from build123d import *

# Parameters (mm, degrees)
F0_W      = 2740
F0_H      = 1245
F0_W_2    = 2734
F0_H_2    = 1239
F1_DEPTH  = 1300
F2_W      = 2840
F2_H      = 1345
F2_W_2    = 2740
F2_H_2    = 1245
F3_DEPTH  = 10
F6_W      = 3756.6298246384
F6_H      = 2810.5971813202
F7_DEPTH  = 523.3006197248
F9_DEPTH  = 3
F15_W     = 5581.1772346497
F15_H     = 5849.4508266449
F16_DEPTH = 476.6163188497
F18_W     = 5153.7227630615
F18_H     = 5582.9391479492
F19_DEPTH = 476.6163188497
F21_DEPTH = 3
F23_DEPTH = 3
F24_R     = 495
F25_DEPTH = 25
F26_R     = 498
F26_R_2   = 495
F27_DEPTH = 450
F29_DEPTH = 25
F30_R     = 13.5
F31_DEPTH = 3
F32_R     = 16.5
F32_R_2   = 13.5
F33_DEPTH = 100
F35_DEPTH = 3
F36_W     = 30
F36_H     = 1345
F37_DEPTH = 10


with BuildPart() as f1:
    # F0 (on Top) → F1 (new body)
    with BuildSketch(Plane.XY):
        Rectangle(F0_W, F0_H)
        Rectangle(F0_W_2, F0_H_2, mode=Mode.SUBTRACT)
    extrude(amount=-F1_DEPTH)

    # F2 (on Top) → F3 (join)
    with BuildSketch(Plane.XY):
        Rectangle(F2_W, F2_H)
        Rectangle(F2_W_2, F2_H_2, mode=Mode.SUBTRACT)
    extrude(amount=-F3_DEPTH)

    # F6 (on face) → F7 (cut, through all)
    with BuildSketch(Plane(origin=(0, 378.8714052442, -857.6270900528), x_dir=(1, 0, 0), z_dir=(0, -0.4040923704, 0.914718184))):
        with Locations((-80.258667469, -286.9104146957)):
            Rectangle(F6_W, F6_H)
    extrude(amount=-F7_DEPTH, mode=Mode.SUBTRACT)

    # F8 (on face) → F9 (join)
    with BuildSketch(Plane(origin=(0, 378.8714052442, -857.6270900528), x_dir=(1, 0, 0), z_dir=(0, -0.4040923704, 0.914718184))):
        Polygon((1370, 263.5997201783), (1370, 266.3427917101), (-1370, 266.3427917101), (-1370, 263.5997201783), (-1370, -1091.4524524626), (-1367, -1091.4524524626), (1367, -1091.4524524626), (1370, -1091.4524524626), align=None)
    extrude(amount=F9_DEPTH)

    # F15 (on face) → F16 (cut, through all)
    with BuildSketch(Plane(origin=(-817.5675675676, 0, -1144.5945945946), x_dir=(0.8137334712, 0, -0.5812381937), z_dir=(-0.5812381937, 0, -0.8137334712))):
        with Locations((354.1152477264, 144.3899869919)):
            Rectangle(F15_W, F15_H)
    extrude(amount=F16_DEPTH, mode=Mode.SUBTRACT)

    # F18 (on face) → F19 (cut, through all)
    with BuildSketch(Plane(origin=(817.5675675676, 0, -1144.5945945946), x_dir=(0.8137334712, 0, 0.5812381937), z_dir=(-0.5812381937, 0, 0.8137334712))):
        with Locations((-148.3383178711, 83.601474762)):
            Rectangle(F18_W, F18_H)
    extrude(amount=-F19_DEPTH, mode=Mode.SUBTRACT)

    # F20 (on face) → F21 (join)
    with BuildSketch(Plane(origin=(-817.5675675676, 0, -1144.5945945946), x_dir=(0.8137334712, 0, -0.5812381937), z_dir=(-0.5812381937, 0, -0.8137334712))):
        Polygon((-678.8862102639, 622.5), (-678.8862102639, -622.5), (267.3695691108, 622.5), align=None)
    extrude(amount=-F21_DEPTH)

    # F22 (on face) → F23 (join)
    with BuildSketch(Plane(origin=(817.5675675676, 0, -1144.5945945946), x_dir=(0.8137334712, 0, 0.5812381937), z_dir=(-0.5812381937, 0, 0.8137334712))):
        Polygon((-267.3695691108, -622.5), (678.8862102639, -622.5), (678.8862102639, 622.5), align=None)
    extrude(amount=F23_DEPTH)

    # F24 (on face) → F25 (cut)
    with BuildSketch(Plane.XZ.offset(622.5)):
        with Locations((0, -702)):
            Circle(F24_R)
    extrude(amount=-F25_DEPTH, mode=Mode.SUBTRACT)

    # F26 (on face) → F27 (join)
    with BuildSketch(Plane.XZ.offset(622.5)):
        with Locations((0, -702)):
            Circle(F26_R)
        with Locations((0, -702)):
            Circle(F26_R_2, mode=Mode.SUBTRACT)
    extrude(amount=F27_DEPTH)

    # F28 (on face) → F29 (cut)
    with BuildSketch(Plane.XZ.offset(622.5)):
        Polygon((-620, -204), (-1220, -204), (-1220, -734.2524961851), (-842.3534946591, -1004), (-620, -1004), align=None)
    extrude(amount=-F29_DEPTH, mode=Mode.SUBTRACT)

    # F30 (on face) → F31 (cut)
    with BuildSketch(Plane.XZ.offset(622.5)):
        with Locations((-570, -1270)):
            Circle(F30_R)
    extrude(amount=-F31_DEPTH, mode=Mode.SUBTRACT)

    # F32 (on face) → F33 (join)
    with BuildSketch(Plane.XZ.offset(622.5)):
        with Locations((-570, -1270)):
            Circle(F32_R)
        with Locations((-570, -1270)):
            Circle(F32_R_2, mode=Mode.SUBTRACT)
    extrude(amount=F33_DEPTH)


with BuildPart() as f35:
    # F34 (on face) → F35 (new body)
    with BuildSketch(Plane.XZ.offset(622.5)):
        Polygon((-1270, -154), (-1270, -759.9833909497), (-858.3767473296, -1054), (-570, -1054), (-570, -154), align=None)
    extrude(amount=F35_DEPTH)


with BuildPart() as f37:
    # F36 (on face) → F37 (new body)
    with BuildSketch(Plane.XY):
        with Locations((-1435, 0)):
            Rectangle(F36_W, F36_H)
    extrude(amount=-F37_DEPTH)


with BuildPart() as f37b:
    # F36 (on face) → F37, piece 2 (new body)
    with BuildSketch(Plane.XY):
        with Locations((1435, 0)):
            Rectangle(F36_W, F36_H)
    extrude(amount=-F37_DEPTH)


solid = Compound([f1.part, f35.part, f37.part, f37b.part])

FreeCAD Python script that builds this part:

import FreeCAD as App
import Part
import Sketcher
from FreeCAD import Vector
Q = App.Units.Quantity

doc = App.newDocument("Part")
body = doc.addObject("PartDesign::Body", "Body")

sketch1 = body.newObject("Sketcher::SketchObject", "Sketch")
sketch1.AttachmentSupport = (doc.getObject("XY_Plane"), [""])
sketch1.MapMode = "FlatFace"
sketch1.addGeometry([
    Part.LineSegment(Vector(-1370, 622.5, 0), Vector(-1370, -622.5, 0)),
    Part.LineSegment(Vector(-1370, -622.5, 0), Vector(1370, -622.5, 0)),
    Part.LineSegment(Vector(1370, -622.5, 0), Vector(1370, 622.5, 0)),
    Part.LineSegment(Vector(1370, 622.5, 0), Vector(-1370, 622.5, 0)),
    Part.LineSegment(Vector(1367, -619.5, 0), Vector(-1367, -619.5, 0)),
    Part.LineSegment(Vector(-1367, -619.5, 0), Vector(-1367, 619.5, 0)),
    Part.LineSegment(Vector(-1367, 619.5, 0), Vector(1367, 619.5, 0)),
    Part.LineSegment(Vector(1367, 619.5, 0), Vector(1367, -619.5, 0)),
], False)
sketch1.addConstraint([
    Sketcher.Constraint("Coincident", 0, 2, 1, 1),
    Sketcher.Constraint("Coincident", 1, 2, 2, 1),
    Sketcher.Constraint("Coincident", 2, 2, 3, 1),
    Sketcher.Constraint("Coincident", 3, 2, 0, 1),
    Sketcher.Constraint("Coincident", 4, 2, 5, 1),
    Sketcher.Constraint("Coincident", 5, 2, 6, 1),
    Sketcher.Constraint("Coincident", 6, 2, 7, 1),
    Sketcher.Constraint("Coincident", 7, 2, 4, 1),
    Sketcher.Constraint("Vertical", 0),
    Sketcher.Constraint("Horizontal", 1),
    Sketcher.Constraint("Vertical", 2),
    Sketcher.Constraint("Horizontal", 3),
    Sketcher.Constraint("Horizontal", 4),
    Sketcher.Constraint("Vertical", 5),
    Sketcher.Constraint("Horizontal", 6),
    Sketcher.Constraint("Vertical", 7),
    Sketcher.Constraint("Symmetric", 0, 2, 2, 2, -1, 1),
    Sketcher.Constraint("Symmetric", 4, 2, 6, 2, -1, 1),
    Sketcher.Constraint("DistanceX", 1, 1, 1, 2, Q("2740 mm")),
    Sketcher.Constraint("DistanceX", 4, 2, 4, 1, Q("2734 mm")),
    Sketcher.Constraint("DistanceY", 0, 2, 0, 1, Q("1245 mm")),
    Sketcher.Constraint("DistanceY", 5, 1, 5, 2, Q("1239 mm")),
])
pad1 = body.newObject("PartDesign::Pad", "Pad")
pad1.Profile = sketch1
pad1.Length = 1300
pad1.Reversed = True

sketch2 = body.newObject("Sketcher::SketchObject", "Sketch001")
sketch2.AttachmentSupport = (doc.getObject("XY_Plane"), [""])
sketch2.MapMode = "FlatFace"
sketch2.addGeometry([
    Part.LineSegment(Vector(-1420, 672.5, 0), Vector(-1420, -672.5, 0)),
    Part.LineSegment(Vector(-1420, -672.5, 0), Vector(1420, -672.5, 0)),
    Part.LineSegment(Vector(1420, -672.5, 0), Vector(1420, 672.5, 0)),
    Part.LineSegment(Vector(1420, 672.5, 0), Vector(-1420, 672.5, 0)),
    Part.LineSegment(Vector(1370, -622.5, 0), Vector(-1370, -622.5, 0)),
    Part.LineSegment(Vector(-1370, -622.5, 0), Vector(-1370, 622.5, 0)),
    Part.LineSegment(Vector(-1370, 622.5, 0), Vector(1370, 622.5, 0)),
    Part.LineSegment(Vector(1370, 622.5, 0), Vector(1370, -622.5, 0)),
], False)
sketch2.addConstraint([
    Sketcher.Constraint("Coincident", 0, 2, 1, 1),
    Sketcher.Constraint("Coincident", 1, 2, 2, 1),
    Sketcher.Constraint("Coincident", 2, 2, 3, 1),
    Sketcher.Constraint("Coincident", 3, 2, 0, 1),
    Sketcher.Constraint("Coincident", 4, 2, 5, 1),
    Sketcher.Constraint("Coincident", 5, 2, 6, 1),
    Sketcher.Constraint("Coincident", 6, 2, 7, 1),
    Sketcher.Constraint("Coincident", 7, 2, 4, 1),
    Sketcher.Constraint("Vertical", 0),
    Sketcher.Constraint("Horizontal", 1),
    Sketcher.Constraint("Vertical", 2),
    Sketcher.Constraint("Horizontal", 3),
    Sketcher.Constraint("Horizontal", 4),
    Sketcher.Constraint("Vertical", 5),
    Sketcher.Constraint("Horizontal", 6),
    Sketcher.Constraint("Vertical", 7),
    Sketcher.Constraint("Symmetric", 0, 2, 2, 2, -1, 1),
    Sketcher.Constraint("Symmetric", 4, 2, 6, 2, -1, 1),
    Sketcher.Constraint("DistanceX", 1, 1, 1, 2, Q("2840 mm")),
    Sketcher.Constraint("DistanceX", 4, 2, 4, 1, Q("2740 mm")),
    Sketcher.Constraint("DistanceY", 0, 2, 0, 1, Q("1345 mm")),
    Sketcher.Constraint("DistanceY", 5, 1, 5, 2, Q("1245 mm")),
])
pad2 = body.newObject("PartDesign::Pad", "Pad001")
pad2.Profile = sketch2
pad2.Length = 10
pad2.Reversed = True

sketch3 = body.newObject("Sketcher::SketchObject", "Sketch002")
sketch3.Placement = App.Placement(Vector(0, 378.871405, -857.62709), App.Rotation(Vector(1, 0, 0), Vector(0, 0.914718184, 0.40409237), Vector(0, -0.40409237, 0.914718184), "ZXY"))
sketch3.addGeometry([
    Part.LineSegment(Vector(-1958.57358, 1118.388176, 0), Vector(-1958.57358, -1692.209005, 0)),
    Part.LineSegment(Vector(-1958.57358, -1692.209005, 0), Vector(1798.056245, -1692.209005, 0)),
    Part.LineSegment(Vector(1798.056245, -1692.209005, 0), Vector(1798.056245, 1118.388176, 0)),
    Part.LineSegment(Vector(1798.056245, 1118.388176, 0), Vector(-1958.57358, 1118.388176, 0)),
], False)
sketch3.addConstraint([
    Sketcher.Constraint("Coincident", 0, 2, 1, 1),
    Sketcher.Constraint("Coincident", 1, 2, 2, 1),
    Sketcher.Constraint("Coincident", 2, 2, 3, 1),
    Sketcher.Constraint("Coincident", 3, 2, 0, 1),
    Sketcher.Constraint("Vertical", 0),
    Sketcher.Constraint("Horizontal", 1),
    Sketcher.Constraint("Vertical", 2),
    Sketcher.Constraint("Horizontal", 3),
    Sketcher.Constraint("DistanceY", 0, 2, 0, 1, Q("2810.59718 mm")),
    Sketcher.Constraint("DistanceX", 1, 1, 1, 2, Q("3756.629825 mm")),
    Sketcher.Constraint("DistanceX", 0, 2, -1, 1, Q("1958.57358 mm")),
    Sketcher.Constraint("DistanceY", 0, 2, -1, 1, Q("1692.209005 mm")),
])
pocket1 = body.newObject("PartDesign::Pocket", "Pocket")
pocket1.Profile = sketch3
pocket1.Type = "ThroughAll"

sketch4 = body.newObject("Sketcher::SketchObject", "Sketch003")
sketch4.Placement = App.Placement(Vector(0, 378.871405, -857.62709), App.Rotation(Vector(1, 0, 0), Vector(0, 0.914718184, 0.40409237), Vector(0, -0.40409237, 0.914718184), "ZXY"))
sketch4.addGeometry([
    Part.LineSegment(Vector(1370, 266.342792, 0), Vector(-1370, 266.342792, 0)),
    Part.LineSegment(Vector(-1370, 266.342792, 0), Vector(-1370, -1091.452452, 0)),
    Part.LineSegment(Vector(-1370, -1091.452452, 0), Vector(1370, -1091.452452, 0)),
    Part.LineSegment(Vector(1370, -1091.452452, 0), Vector(1370, 266.342792, 0)),
], False)
sketch4.addConstraint([
    Sketcher.Constraint("Coincident", 0, 2, 1, 1),
    Sketcher.Constraint("Coincident", 1, 2, 2, 1),
    Sketcher.Constraint("Coincident", 2, 2, 3, 1),
    Sketcher.Constraint("Coincident", 3, 2, 0, 1),
    Sketcher.Constraint("Horizontal", 0),
    Sketcher.Constraint("Vertical", 1),
    Sketcher.Constraint("Horizontal", 2),
    Sketcher.Constraint("Vertical", 3),
    Sketcher.Constraint("DistanceX", 0, 2, 0, 1, Q("2740 mm")),
    Sketcher.Constraint("DistanceX", 0, 2, -1, 1, Q("1370 mm")),
    Sketcher.Constraint("DistanceY", 1, 2, 1, 1, Q("1357.795244 mm")),
    Sketcher.Constraint("DistanceY", -1, 1, 0, 2, Q("266.342792 mm")),
])
pad3 = body.newObject("PartDesign::Pad", "Pad002")
pad3.Profile = sketch4
pad3.Length = 3

sketch5 = body.newObject("Sketcher::SketchObject", "Sketch004")
sketch5.Placement = App.Placement(Vector(-817.567568, 0, -1144.594595), App.Rotation(Vector(0.813733471, 0, -0.581238194), Vector(0, -1, 0), Vector(-0.581238194, 0, -0.813733471), "ZXY"))
sketch5.addGeometry([
    Part.LineSegment(Vector(-2436.47337, 3069.1154, 0), Vector(-2436.47337, -2780.335426, 0)),
    Part.LineSegment(Vector(-2436.47337, -2780.335426, 0), Vector(3144.703865, -2780.335426, 0)),
    Part.LineSegment(Vector(3144.703865, -2780.335426, 0), Vector(3144.703865, 3069.1154, 0)),
    Part.LineSegment(Vector(3144.703865, 3069.1154, 0), Vector(-2436.47337, 3069.1154, 0)),
], False)
sketch5.addConstraint([
    Sketcher.Constraint("Coincident", 0, 2, 1, 1),
    Sketcher.Constraint("Coincident", 1, 2, 2, 1),
    Sketcher.Constraint("Coincident", 2, 2, 3, 1),
    Sketcher.Constraint("Coincident", 3, 2, 0, 1),
    Sketcher.Constraint("Vertical", 0),
    Sketcher.Constraint("Horizontal", 1),
    Sketcher.Constraint("Vertical", 2),
    Sketcher.Constraint("Horizontal", 3),
    Sketcher.Constraint("DistanceY", -1, 1, 2, 2, Q("3069.1154 mm")),
    Sketcher.Constraint("DistanceX", 1, 1, 1, 2, Q("5581.177235 mm")),
    Sketcher.Constraint("DistanceY", 0, 2, 0, 1, Q("5849.450827 mm")),
    Sketcher.Constraint("DistanceX", 0, 2, -1, 1, Q("2436.47337 mm")),
])
pocket2 = body.newObject("PartDesign::Pocket", "Pocket001")
pocket2.Profile = sketch5
pocket2.Type = "ThroughAll"
pocket2.Reversed = True

sketch6 = body.newObject("Sketcher::SketchObject", "Sketch005")
sketch6.Placement = App.Placement(Vector(817.567568, 0, -1144.594595), App.Rotation(Vector(0.813733471, 0, 0.581238194), Vector(0, 1, 0), Vector(-0.581238194, 0, 0.813733471), "ZXY"))
sketch6.addGeometry([
    Part.LineSegment(Vector(-2725.199699, 2875.071049, 0), Vector(-2725.199699, -2707.868099, 0)),
    Part.LineSegment(Vector(-2725.199699, -2707.868099, 0), Vector(2428.523064, -2707.868099, 0)),
    Part.LineSegment(Vector(2428.523064, -2707.868099, 0), Vector(2428.523064, 2875.071049, 0)),
    Part.LineSegment(Vector(2428.523064, 2875.071049, 0), Vector(-2725.199699, 2875.071049, 0)),
], False)
sketch6.addConstraint([
    Sketcher.Constraint("Coincident", 0, 2, 1, 1),
    Sketcher.Constraint("Coincident", 1, 2, 2, 1),
    Sketcher.Constraint("Coincident", 2, 2, 3, 1),
    Sketcher.Constraint("Coincident", 3, 2, 0, 1),
    Sketcher.Constraint("Vertical", 0),
    Sketcher.Constraint("Horizontal", 1),
    Sketcher.Constraint("Vertical", 2),
    Sketcher.Constraint("Horizontal", 3),
    Sketcher.Constraint("DistanceX", 0, 2, -1, 1, Q("2725.199699 mm")),
    Sketcher.Constraint("DistanceY", 0, 2, -1, 1, Q("2707.868099 mm")),
    Sketcher.Constraint("DistanceX", 1, 1, 1, 2, Q("5153.722763 mm")),
    Sketcher.Constraint("DistanceY", 0, 2, 0, 1, Q("5582.939148 mm")),
])
pocket3 = body.newObject("PartDesign::Pocket", "Pocket002")
pocket3.Profile = sketch6
pocket3.Type = "ThroughAll"

sketch7 = body.newObject("Sketcher::SketchObject", "Sketch006")
sketch7.Placement = App.Placement(Vector(-817.567568, 0, -1144.594595), App.Rotation(Vector(0.813733471, 0, -0.581238194), Vector(0, -1, 0), Vector(-0.581238194, 0, -0.813733471), "ZXY"))
sketch7.addGeometry([
    Part.LineSegment(Vector(-678.88621, 622.5, 0), Vector(-678.88621, -622.5, 0)),
    Part.LineSegment(Vector(-678.88621, -622.5, 0), Vector(267.369569, 622.5, 0)),
    Part.LineSegment(Vector(267.369569, 622.5, 0), Vector(-678.88621, 622.5, 0)),
], False)
sketch7.addConstraint([
    Sketcher.Constraint("Coincident", 0, 2, 1, 1),
    Sketcher.Constraint("Coincident", 1, 2, 2, 1),
    Sketcher.Constraint("Coincident", 2, 2, 0, 1),
    Sketcher.Constraint("Vertical", 0),
    Sketcher.Constraint("Horizontal", 2),
    Sketcher.Constraint("DistanceY", 0, 2, 0, 1, Q("1245 mm")),
    Sketcher.Constraint("DistanceY", 0, 2, -1, 1, Q("622.5 mm")),
    Sketcher.Constraint("DistanceX", 2, 2, 2, 1, Q("946.255779 mm")),
    Sketcher.Constraint("DistanceX", 0, 2, -1, 1, Q("678.88621 mm")),
])
pad4 = body.newObject("PartDesign::Pad", "Pad003")
pad4.Profile = sketch7
pad4.Length = 3
pad4.Reversed = True

sketch8 = body.newObject("Sketcher::SketchObject", "Sketch007")
sketch8.Placement = App.Placement(Vector(817.567568, 0, -1144.594595), App.Rotation(Vector(0.813733471, 0, 0.581238194), Vector(0, 1, 0), Vector(-0.581238194, 0, 0.813733471), "ZXY"))
sketch8.addGeometry([
    Part.LineSegment(Vector(-267.369569, -622.5, 0), Vector(678.88621, -622.5, 0)),
    Part.LineSegment(Vector(678.88621, -622.5, 0), Vector(678.88621, 622.5, 0)),
    Part.LineSegment(Vector(678.88621, 622.5, 0), Vector(-267.369569, -622.5, 0)),
], False)
sketch8.addConstraint([
    Sketcher.Constraint("Coincident", 0, 2, 1, 1),
    Sketcher.Constraint("Coincident", 1, 2, 2, 1),
    Sketcher.Constraint("Coincident", 2, 2, 0, 1),
    Sketcher.Constraint("Horizontal", 0),
    Sketcher.Constraint("Vertical", 1),
    Sketcher.Constraint("DistanceY", 1, 1, 1, 2, Q("1245 mm")),
    Sketcher.Constraint("DistanceY", 0, 2, -1, 1, Q("622.5 mm")),
    Sketcher.Constraint("DistanceX", 0, 1, 0, 2, Q("946.255779 mm")),
    Sketcher.Constraint("DistanceX", -1, 1, 0, 2, Q("678.88621 mm")),
])
pad5 = body.newObject("PartDesign::Pad", "Pad004")
pad5.Profile = sketch8
pad5.Length = 3

sketch9 = body.newObject("Sketcher::SketchObject", "Sketch008")
sketch9.AttachmentSupport = (doc.getObject("XZ_Plane"), [""])
sketch9.MapMode = "FlatFace"
sketch9.AttachmentOffset = App.Placement(Vector(0, 0, 622.5), App.Rotation())
sketch9.addGeometry(Part.Circle(Vector(0, -702, 0), Vector(0, 0, 1), 495), False)
sketch9.addConstraint([
    Sketcher.Constraint("PointOnObject", 0, 3, -2),
    Sketcher.Constraint("Diameter", 0, Q("990 mm")),
    Sketcher.Constraint("DistanceY", 0, 3, -1, 1, Q("702 mm")),
])
pocket4 = body.newObject("PartDesign::Pocket", "Pocket003")
pocket4.Profile = sketch9
pocket4.Length = 25

sketch10 = body.newObject("Sketcher::SketchObject", "Sketch009")
sketch10.AttachmentSupport = (doc.getObject("XZ_Plane"), [""])
sketch10.MapMode = "FlatFace"
sketch10.AttachmentOffset = App.Placement(Vector(0, 0, 622.5), App.Rotation())
sketch10.addGeometry([
    Part.Circle(Vector(0, -702, 0), Vector(0, 0, 1), 498),
    Part.Circle(Vector(0, -702, 0), Vector(0, 0, 1), 495),
], False)
sketch10.addConstraint([
    Sketcher.Constraint("Coincident", 1, 3, 0, 3),
    Sketcher.Constraint("PointOnObject", 0, 3, -2),
    Sketcher.Constraint("Diameter", 0, Q("996 mm")),
    Sketcher.Constraint("Diameter", 1, Q("990 mm")),
    Sketcher.Constraint("DistanceY", 0, 3, -1, 1, Q("702 mm")),
])
pad6 = body.newObject("PartDesign::Pad", "Pad005")
pad6.Profile = sketch10
pad6.Length = 450

sketch11 = body.newObject("Sketcher::SketchObject", "Sketch010")
sketch11.AttachmentSupport = (doc.getObject("XZ_Plane"), [""])
sketch11.MapMode = "FlatFace"
sketch11.AttachmentOffset = App.Placement(Vector(0, 0, 622.5), App.Rotation())
sketch11.addGeometry([
    Part.LineSegment(Vector(-620, -204, 0), Vector(-1220, -204, 0)),
    Part.LineSegment(Vector(-1220, -204, 0), Vector(-1220, -734.252496, 0)),
    Part.LineSegment(Vector(-1220, -734.252496, 0), Vector(-842.353495, -1004, 0)),
    Part.LineSegment(Vector(-842.353495, -1004, 0), Vector(-620, -1004, 0)),
    Part.LineSegment(Vector(-620, -1004, 0), Vector(-620, -204, 0)),
], False)
sketch11.addConstraint([
    Sketcher.Constraint("Coincident", 0, 2, 1, 1),
    Sketcher.Constraint("Coincident", 1, 2, 2, 1),
    Sketcher.Constraint("Coincident", 2, 2, 3, 1),
    Sketcher.Constraint("Coincident", 3, 2, 4, 1),
    Sketcher.Constraint("Coincident", 4, 2, 0, 1),
    Sketcher.Constraint("Horizontal", 0),
    Sketcher.Constraint("Vertical", 1),
    Sketcher.Constraint("Horizontal", 3),
    Sketcher.Constraint("Vertical", 4),
    Sketcher.Constraint("DistanceX", 0, 2, 0, 1, Q("600 mm")),
    Sketcher.Constraint("DistanceY", 4, 1, 4, 2, Q("800 mm")),
    Sketcher.Constraint("DistanceX", 0, 2, -1, 1, Q("1220 mm")),
    Sketcher.Constraint("DistanceY", 0, 2, -1, 1, Q("204 mm")),
    Sketcher.Constraint("DistanceX", 3, 1, 3, 2, Q("222.353495 mm")),
    Sketcher.Constraint("DistanceY", 1, 2, 1, 1, Q("530.252496 mm")),
])
pocket5 = body.newObject("PartDesign::Pocket", "Pocket004")
pocket5.Profile = sketch11
pocket5.Length = 25

sketch12 = body.newObject("Sketcher::SketchObject", "Sketch011")
sketch12.AttachmentSupport = (doc.getObject("XZ_Plane"), [""])
sketch12.MapMode = "FlatFace"
sketch12.AttachmentOffset = App.Placement(Vector(0, 0, 622.5), App.Rotation())
sketch12.addGeometry(Part.Circle(Vector(-570, -1270, 0), Vector(0, 0, 1), 13.5), False)
sketch12.addConstraint([
    Sketcher.Constraint("Diameter", 0, Q("27 mm")),
    Sketcher.Constraint("DistanceX", 0, 3, -1, 1, Q("570 mm")),
    Sketcher.Constraint("DistanceY", 0, 3, -1, 1, Q("1270 mm")),
])
pocket6 = body.newObject("PartDesign::Pocket", "Pocket005")
pocket6.Profile = sketch12
pocket6.Length = 3

sketch13 = body.newObject("Sketcher::SketchObject", "Sketch012")
sketch13.AttachmentSupport = (doc.getObject("XZ_Plane"), [""])
sketch13.MapMode = "FlatFace"
sketch13.AttachmentOffset = App.Placement(Vector(0, 0, 622.5), App.Rotation())
sketch13.addGeometry([
    Part.Circle(Vector(-570, -1270, 0), Vector(0, 0, 1), 16.5),
    Part.Circle(Vector(-570, -1270, 0), Vector(0, 0, 1), 13.5),
], False)
sketch13.addConstraint([
    Sketcher.Constraint("Coincident", 1, 3, 0, 3),
    Sketcher.Constraint("Diameter", 0, Q("33 mm")),
    Sketcher.Constraint("Diameter", 1, Q("27 mm")),
    Sketcher.Constraint("DistanceX", 0, 3, -1, 1, Q("570 mm")),
    Sketcher.Constraint("DistanceY", 0, 3, -1, 1, Q("1270 mm")),
])
pad7 = body.newObject("PartDesign::Pad", "Pad006")
pad7.Profile = sketch13
pad7.Length = 100
body2 = doc.addObject("PartDesign::Body", "Body001")

sketch14 = body2.newObject("Sketcher::SketchObject", "Sketch013")
sketch14.AttachmentSupport = (doc.getObject("XZ_Plane001"), [""])
sketch14.MapMode = "FlatFace"
sketch14.AttachmentOffset = App.Placement(Vector(0, 0, 622.5), App.Rotation())
sketch14.addGeometry([
    Part.LineSegment(Vector(-1270, -154, 0), Vector(-1270, -759.983391, 0)),
    Part.LineSegment(Vector(-1270, -759.983391, 0), Vector(-858.376747, -1054, 0)),
    Part.LineSegment(Vector(-858.376747, -1054, 0), Vector(-570, -1054, 0)),
    Part.LineSegment(Vector(-570, -1054, 0), Vector(-570, -154, 0)),
    Part.LineSegment(Vector(-570, -154, 0), Vector(-1270, -154, 0)),
], False)
sketch14.addConstraint([
    Sketcher.Constraint("Coincident", 0, 2, 1, 1),
    Sketcher.Constraint("Coincident", 1, 2, 2, 1),
    Sketcher.Constraint("Coincident", 2, 2, 3, 1),
    Sketcher.Constraint("Coincident", 3, 2, 4, 1),
    Sketcher.Constraint("Coincident", 4, 2, 0, 1),
    Sketcher.Constraint("Vertical", 0),
    Sketcher.Constraint("Horizontal", 2),
    Sketcher.Constraint("Vertical", 3),
    Sketcher.Constraint("Horizontal", 4),
    Sketcher.Constraint("DistanceX", 4, 2, 4, 1, Q("700 mm")),
    Sketcher.Constraint("DistanceY", 3, 1, 3, 2, Q("900 mm")),
    Sketcher.Constraint("DistanceX", 0, 2, -1, 1, Q("1270 mm")),
    Sketcher.Constraint("DistanceY", 1, 2, -1, 1, Q("1054 mm")),
    Sketcher.Constraint("Distance", 1, Q("505.845301 mm")),
    Sketcher.Constraint("DistanceY", 0, 2, 0, 1, Q("605.983391 mm")),
])
pad8 = body2.newObject("PartDesign::Pad", "Pad007")
pad8.Profile = sketch14
pad8.Length = 3
body3 = doc.addObject("PartDesign::Body", "Body002")

sketch15 = body3.newObject("Sketcher::SketchObject", "Sketch014")
sketch15.AttachmentSupport = (doc.getObject("XY_Plane002"), [""])
sketch15.MapMode = "FlatFace"
sketch15.addGeometry([
    Part.LineSegment(Vector(-1450, 672.5, 0), Vector(-1450, -672.5, 0)),
    Part.LineSegment(Vector(-1450, -672.5, 0), Vector(-1420, -672.5, 0)),
    Part.LineSegment(Vector(-1420, -672.5, 0), Vector(-1420, 672.5, 0)),
    Part.LineSegment(Vector(-1420, 672.5, 0), Vector(-1450, 672.5, 0)),
], False)
sketch15.addConstraint([
    Sketcher.Constraint("Coincident", 0, 2, 1, 1),
    Sketcher.Constraint("Coincident", 1, 2, 2, 1),
    Sketcher.Constraint("Coincident", 2, 2, 3, 1),
    Sketcher.Constraint("Coincident", 3, 2, 0, 1),
    Sketcher.Constraint("Vertical", 0),
    Sketcher.Constraint("Horizontal", 1),
    Sketcher.Constraint("Vertical", 2),
    Sketcher.Constraint("Horizontal", 3),
    Sketcher.Constraint("DistanceX", 1, 1, 1, 2, Q("30 mm")),
    Sketcher.Constraint("DistanceY", 0, 2, 0, 1, Q("1345 mm")),
    Sketcher.Constraint("DistanceX", 0, 2, -1, 1, Q("1450 mm")),
    Sketcher.Constraint("DistanceY", 0, 2, -1, 1, Q("672.5 mm")),
])
pad9 = body3.newObject("PartDesign::Pad", "Pad008")
pad9.Profile = sketch15
pad9.Length = 10
pad9.Reversed = True
body4 = doc.addObject("PartDesign::Body", "Body003")

sketch16 = body4.newObject("Sketcher::SketchObject", "Sketch015")
sketch16.AttachmentSupport = (doc.getObject("XY_Plane003"), [""])
sketch16.MapMode = "FlatFace"
sketch16.addGeometry([
    Part.LineSegment(Vector(1420, 672.5, 0), Vector(1420, -672.5, 0)),
    Part.LineSegment(Vector(1420, -672.5, 0), Vector(1450, -672.5, 0)),
    Part.LineSegment(Vector(1450, -672.5, 0), Vector(1450, 672.5, 0)),
    Part.LineSegment(Vector(1450, 672.5, 0), Vector(1420, 672.5, 0)),
], False)
sketch16.addConstraint([
    Sketcher.Constraint("Coincident", 0, 2, 1, 1),
    Sketcher.Constraint("Coincident", 1, 2, 2, 1),
    Sketcher.Constraint("Coincident", 2, 2, 3, 1),
    Sketcher.Constraint("Coincident", 3, 2, 0, 1),
    Sketcher.Constraint("Vertical", 0),
    Sketcher.Constraint("Horizontal", 1),
    Sketcher.Constraint("Vertical", 2),
    Sketcher.Constraint("Horizontal", 3),
    Sketcher.Constraint("DistanceX", 1, 1, 1, 2, Q("30 mm")),
    Sketcher.Constraint("DistanceY", 0, 2, 0, 1, Q("1345 mm")),
    Sketcher.Constraint("DistanceX", -1, 1, 0, 2, Q("1420 mm")),
    Sketcher.Constraint("DistanceY", 0, 2, -1, 1, Q("672.5 mm")),
])
pad10 = body4.newObject("PartDesign::Pad", "Pad009")
pad10.Profile = sketch16
pad10.Length = 10
pad10.Reversed = True

doc.recompute()
